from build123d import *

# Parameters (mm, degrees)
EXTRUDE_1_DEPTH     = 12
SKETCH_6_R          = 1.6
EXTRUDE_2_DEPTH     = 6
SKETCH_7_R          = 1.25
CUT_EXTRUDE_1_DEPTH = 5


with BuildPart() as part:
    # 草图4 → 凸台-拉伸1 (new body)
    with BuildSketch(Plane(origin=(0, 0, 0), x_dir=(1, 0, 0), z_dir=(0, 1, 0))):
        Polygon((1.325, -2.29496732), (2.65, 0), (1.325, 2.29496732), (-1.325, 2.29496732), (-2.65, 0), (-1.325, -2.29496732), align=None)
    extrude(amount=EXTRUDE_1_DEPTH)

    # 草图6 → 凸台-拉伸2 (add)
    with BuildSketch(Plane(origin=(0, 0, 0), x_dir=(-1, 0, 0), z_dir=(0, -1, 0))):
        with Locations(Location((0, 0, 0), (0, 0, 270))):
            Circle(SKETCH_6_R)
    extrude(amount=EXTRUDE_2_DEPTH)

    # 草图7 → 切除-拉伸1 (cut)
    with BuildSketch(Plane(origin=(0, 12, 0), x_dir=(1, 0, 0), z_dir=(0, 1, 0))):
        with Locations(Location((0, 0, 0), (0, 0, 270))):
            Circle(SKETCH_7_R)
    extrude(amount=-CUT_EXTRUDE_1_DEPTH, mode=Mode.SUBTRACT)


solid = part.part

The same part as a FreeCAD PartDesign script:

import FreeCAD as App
import Part
import Sketcher
Q = App.Units.Quantity

doc = App.newDocument("Part")
body = doc.addObject("PartDesign::Body", "Body")

sketch1 = body.newObject("Sketcher::SketchObject", "Sketch")
sketch1.AttachmentSupport = (doc.getObject("XZ_Plane"), [""])
sketch1.MapMode = "FlatFace"
sketch1.addGeometry(Part.LineSegment(App.Vector(1.3, 2.3, 0), App.Vector(2.6, 0, 0)), False)
sketch1.addGeometry(Part.LineSegment(App.Vector(2.6, 0, 0), App.Vector(1.3, -2.3, 0)), False)
sketch1.addGeometry(Part.LineSegment(App.Vector(1.3, -2.3, 0), App.Vector(-1.3, -2.3, 0)), False)
sketch1.addGeometry(Part.LineSegment(App.Vector(-1.3, -2.3, 0), App.Vector(-2.6, 0, 0)), False)
sketch1.addGeometry(Part.LineSegment(App.Vector(-2.6, 0, 0), App.Vector(-1.3, 2.3, 0)), False)
sketch1.addGeometry(Part.LineSegment(App.Vector(-1.3, 2.3, 0), App.Vector(1.3, 2.3, 0)), False)
sketch1.addConstraint(Sketcher.Constraint("Coincident", 0, 2, 1, 1))
sketch1.addConstraint(Sketcher.Constraint("Coincident", 1, 2, 2, 1))
sketch1.addConstraint(Sketcher.Constraint("Coincident", 2, 2, 3, 1))
sketch1.addConstraint(Sketcher.Constraint("Coincident", 3, 2, 4, 1))
sketch1.addConstraint(Sketcher.Constraint("Coincident", 4, 2, 5, 1))
sketch1.addConstraint(Sketcher.Constraint("Coincident", 5, 2, 0, 1))
sketch1.addConstraint(Sketcher.Constraint("Horizontal", 2))
sketch1.addConstraint(Sketcher.Constraint("Horizontal", 5))
sketch1.addConstraint(Sketcher.Constraint("Symmetric", 0, 2, 3, 2, -1, 1))
sketch1.addConstraint(Sketcher.Constraint("Symmetric", 1, 2, 4, 2, -1, 1))
sketch1.addConstraint(Sketcher.Constraint("PointOnObject", 0, 2, -1))
sketch1.addConstraint(Sketcher.Constraint("Parallel", 0, 3))
sketch1.addConstraint(Sketcher.Constraint("Vertical", 2, 2, 4, 2))
sketch1.addConstraint(Sketcher.Constraint("Angle", 0, Q("-60 deg")))
sketch1.addConstraint(Sketcher.Constraint("DistanceX", 2, 2, 2, 1, 2.65))
sketch1.addConstraint(Sketcher.Constraint("DistanceX", 3, 2, 0, 2, 5.3))
pad1 = body.newObject("PartDesign::Pad", "Pad")
pad1.Profile = sketch1
pad1.Length = 12
pad1.Reversed = True

sketch2 = body.newObject("Sketcher::SketchObject", "Sketch001")
sketch2.AttachmentSupport = (doc.getObject("XZ_Plane"), [""])
sketch2.MapMode = "FlatFace"
sketch2.addGeometry(Part.Circle(App.Vector(0, 0, 0), App.Vector(0, 0, 1), 1.6), False)
sketch2.addConstraint(Sketcher.Constraint("Coincident", 0, 3, -1, 1))
sketch2.addConstraint(Sketcher.Constraint("Diameter", 0, 3.2))
pad2 = body.newObject("PartDesign::Pad", "Pad001")
pad2.Profile = sketch2
pad2.Length = 6

sketch3 = body.newObject("Sketcher::SketchObject", "Sketch002")
sketch3.AttachmentSupport = (doc.getObject("XZ_Plane"), [""])
sketch3.MapMode = "FlatFace"
sketch3.AttachmentOffset = App.Placement(App.Vector(0, 0, -12), App.Rotation())
sketch3.addGeometry(Part.Circle(App.Vector(0, 0, 0), App.Vector(0, 0, 1), 1.2), False)
sketch3.addConstraint(Sketcher.Constraint("Coincident", 0, 3, -1, 1))
sketch3.addConstraint(Sketcher.Constraint("Diameter", 0, 2.5))
pocket1 = body.newObject("PartDesign::Pocket", "Pocket")
pocket1.Profile = sketch3
pocket1.Length = 5
pocket1.Reversed = True

doc.recompute()
